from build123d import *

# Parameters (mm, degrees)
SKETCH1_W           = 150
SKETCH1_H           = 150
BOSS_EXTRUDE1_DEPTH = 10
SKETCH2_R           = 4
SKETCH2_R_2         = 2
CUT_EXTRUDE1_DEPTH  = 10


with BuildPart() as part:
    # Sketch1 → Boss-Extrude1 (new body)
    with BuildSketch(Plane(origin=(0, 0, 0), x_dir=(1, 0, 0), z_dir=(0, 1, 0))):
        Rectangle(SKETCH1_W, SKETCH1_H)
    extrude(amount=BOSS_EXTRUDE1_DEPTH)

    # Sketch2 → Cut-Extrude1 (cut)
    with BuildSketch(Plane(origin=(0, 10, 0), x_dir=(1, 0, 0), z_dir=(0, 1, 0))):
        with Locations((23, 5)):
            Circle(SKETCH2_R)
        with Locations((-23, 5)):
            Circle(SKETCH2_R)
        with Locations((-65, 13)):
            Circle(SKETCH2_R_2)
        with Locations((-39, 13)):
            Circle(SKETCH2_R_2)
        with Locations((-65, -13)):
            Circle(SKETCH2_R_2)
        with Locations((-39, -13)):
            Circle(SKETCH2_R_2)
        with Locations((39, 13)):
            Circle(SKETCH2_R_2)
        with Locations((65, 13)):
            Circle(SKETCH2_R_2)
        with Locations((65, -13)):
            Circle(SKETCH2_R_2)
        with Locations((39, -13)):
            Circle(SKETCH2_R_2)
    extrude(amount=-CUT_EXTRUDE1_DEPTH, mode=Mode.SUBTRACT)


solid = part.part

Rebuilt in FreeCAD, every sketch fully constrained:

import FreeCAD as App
import Part
import Sketcher
from FreeCAD import Vector

doc = App.newDocument("Part")
body = doc.addObject("PartDesign::Body", "Body")

sketch1 = body.newObject("Sketcher::SketchObject", "Sketch")
sketch1.AttachmentSupport = (doc.getObject("XZ_Plane"), [""])
sketch1.MapMode = "FlatFace"
sketch1.addGeometry([
    Part.LineSegment(Vector(-75, -75, 0), Vector(-75, 75, 0)),
    Part.LineSegment(Vector(-75, 75, 0), Vector(75, 75, 0)),
    Part.LineSegment(Vector(75, 75, 0), Vector(75, -75, 0)),
    Part.LineSegment(Vector(75, -75, 0), Vector(-75, -75, 0)),
], False)
sketch1.addConstraint([
    Sketcher.Constraint("Coincident", 0, 2, 1, 1),
    Sketcher.Constraint("Coincident", 1, 2, 2, 1),
    Sketcher.Constraint("Coincident", 2, 2, 3, 1),
    Sketcher.Constraint("Coincident", 3, 2, 0, 1),
    Sketcher.Constraint("Vertical", 0),
    Sketcher.Constraint("Horizontal", 1),
    Sketcher.Constraint("Vertical", 2),
    Sketcher.Constraint("Horizontal", 3),
    Sketcher.Constraint("Symmetric", 0, 2, 2, 2, -1, 1),
    Sketcher.Constraint("Equal", 3, 0),
    Sketcher.Constraint("DistanceX", 1, 1, 1, 2, 150.0),
])
pad1 = body.newObject("PartDesign::Pad", "Pad")
pad1.Profile = sketch1
pad1.Length = 10
pad1.Reversed = True

sketch2 = body.newObject("Sketcher::SketchObject", "Sketch001")
sketch2.AttachmentSupport = (doc.getObject("XZ_Plane"), [""])
sketch2.MapMode = "FlatFace"
sketch2.AttachmentOffset = App.Placement(Vector(0, 0, -10), App.Rotation())
sketch2.addGeometry([
    Part.Circle(Vector(23, -5, 0), Vector(0, 0, 1), 4),
    Part.Circle(Vector(-23, -5, 0), Vector(0, 0, 1), 4),
    Part.Circle(Vector(-65, -13, 0), Vector(0, 0, 1), 2),
    Part.Circle(Vector(-39, -13, 0), Vector(0, 0, 1), 2),
    Part.Circle(Vector(-65, 13, 0), Vector(0, 0, 1), 2),
    Part.Circle(Vector(-39, 13, 0), Vector(0, 0, 1), 2),
    Part.Circle(Vector(39, -13, 0), Vector(0, 0, 1), 2),
    Part.Circle(Vector(65, -13, 0), Vector(0, 0, 1), 2),
    Part.Circle(Vector(65, 13, 0), Vector(0, 0, 1), 2),
    Part.Circle(Vector(39, 13, 0), Vector(0, 0, 1), 2),
], False)
sketch2.addConstraint([
    Sketcher.Constraint("Equal", 0, 1),
    Sketcher.Constraint("Equal", 2, 3),
    Sketcher.Constraint("Equal", 3, 4),
    Sketcher.Constraint("Equal", 4, 5),
    Sketcher.Constraint("Equal", 5, 6),
    Sketcher.Constraint("Equal", 6, 7),
    Sketcher.Constraint("Equal", 7, 8),
    Sketcher.Constraint("Equal", 8, 9),
    Sketcher.Constraint("Symmetric", 5, 3, 6, 3, -1, 1),
    Sketcher.Constraint("Symmetric", 4, 3, 7, 3, -1, 1),
    Sketcher.Constraint("Symmetric", 2, 3, 8, 3, -1, 1),
    Sketcher.Constraint("Symmetric", 3, 3, 9, 3, -1, 1),
    Sketcher.Constraint("Symmetric", 0, 3, 1, 3, -2),
    Sketcher.Constraint("Symmetric", 3, 3, 6, 3, -2),
    Sketcher.Constraint("Symmetric", 2, 3, 7, 3, -2),
    Sketcher.Constraint("Horizontal", 2, 3, 3, 3),
    Sketcher.Constraint("Diameter", 0, 8.0),
    Sketcher.Constraint("Diameter", 2, 4.0),
    Sketcher.Constraint("DistanceX", -1, 1, 0, 3, 23.0),
    Sketcher.Constraint("DistanceY", 0, 3, -1, 1, 5.0),
    Sketcher.Constraint("DistanceX", 2, 3, -1, 1, 65.0),
    Sketcher.Constraint("DistanceY", 2, 3, -1, 1, 13.0),
    Sketcher.Constraint("DistanceX", 3, 3, -1, 1, 39.0),
])
pocket1 = body.newObject("PartDesign::Pocket", "Pocket")
pocket1.Profile = sketch2
pocket1.Length = 10
pocket1.Reversed = True

doc.recompute()
